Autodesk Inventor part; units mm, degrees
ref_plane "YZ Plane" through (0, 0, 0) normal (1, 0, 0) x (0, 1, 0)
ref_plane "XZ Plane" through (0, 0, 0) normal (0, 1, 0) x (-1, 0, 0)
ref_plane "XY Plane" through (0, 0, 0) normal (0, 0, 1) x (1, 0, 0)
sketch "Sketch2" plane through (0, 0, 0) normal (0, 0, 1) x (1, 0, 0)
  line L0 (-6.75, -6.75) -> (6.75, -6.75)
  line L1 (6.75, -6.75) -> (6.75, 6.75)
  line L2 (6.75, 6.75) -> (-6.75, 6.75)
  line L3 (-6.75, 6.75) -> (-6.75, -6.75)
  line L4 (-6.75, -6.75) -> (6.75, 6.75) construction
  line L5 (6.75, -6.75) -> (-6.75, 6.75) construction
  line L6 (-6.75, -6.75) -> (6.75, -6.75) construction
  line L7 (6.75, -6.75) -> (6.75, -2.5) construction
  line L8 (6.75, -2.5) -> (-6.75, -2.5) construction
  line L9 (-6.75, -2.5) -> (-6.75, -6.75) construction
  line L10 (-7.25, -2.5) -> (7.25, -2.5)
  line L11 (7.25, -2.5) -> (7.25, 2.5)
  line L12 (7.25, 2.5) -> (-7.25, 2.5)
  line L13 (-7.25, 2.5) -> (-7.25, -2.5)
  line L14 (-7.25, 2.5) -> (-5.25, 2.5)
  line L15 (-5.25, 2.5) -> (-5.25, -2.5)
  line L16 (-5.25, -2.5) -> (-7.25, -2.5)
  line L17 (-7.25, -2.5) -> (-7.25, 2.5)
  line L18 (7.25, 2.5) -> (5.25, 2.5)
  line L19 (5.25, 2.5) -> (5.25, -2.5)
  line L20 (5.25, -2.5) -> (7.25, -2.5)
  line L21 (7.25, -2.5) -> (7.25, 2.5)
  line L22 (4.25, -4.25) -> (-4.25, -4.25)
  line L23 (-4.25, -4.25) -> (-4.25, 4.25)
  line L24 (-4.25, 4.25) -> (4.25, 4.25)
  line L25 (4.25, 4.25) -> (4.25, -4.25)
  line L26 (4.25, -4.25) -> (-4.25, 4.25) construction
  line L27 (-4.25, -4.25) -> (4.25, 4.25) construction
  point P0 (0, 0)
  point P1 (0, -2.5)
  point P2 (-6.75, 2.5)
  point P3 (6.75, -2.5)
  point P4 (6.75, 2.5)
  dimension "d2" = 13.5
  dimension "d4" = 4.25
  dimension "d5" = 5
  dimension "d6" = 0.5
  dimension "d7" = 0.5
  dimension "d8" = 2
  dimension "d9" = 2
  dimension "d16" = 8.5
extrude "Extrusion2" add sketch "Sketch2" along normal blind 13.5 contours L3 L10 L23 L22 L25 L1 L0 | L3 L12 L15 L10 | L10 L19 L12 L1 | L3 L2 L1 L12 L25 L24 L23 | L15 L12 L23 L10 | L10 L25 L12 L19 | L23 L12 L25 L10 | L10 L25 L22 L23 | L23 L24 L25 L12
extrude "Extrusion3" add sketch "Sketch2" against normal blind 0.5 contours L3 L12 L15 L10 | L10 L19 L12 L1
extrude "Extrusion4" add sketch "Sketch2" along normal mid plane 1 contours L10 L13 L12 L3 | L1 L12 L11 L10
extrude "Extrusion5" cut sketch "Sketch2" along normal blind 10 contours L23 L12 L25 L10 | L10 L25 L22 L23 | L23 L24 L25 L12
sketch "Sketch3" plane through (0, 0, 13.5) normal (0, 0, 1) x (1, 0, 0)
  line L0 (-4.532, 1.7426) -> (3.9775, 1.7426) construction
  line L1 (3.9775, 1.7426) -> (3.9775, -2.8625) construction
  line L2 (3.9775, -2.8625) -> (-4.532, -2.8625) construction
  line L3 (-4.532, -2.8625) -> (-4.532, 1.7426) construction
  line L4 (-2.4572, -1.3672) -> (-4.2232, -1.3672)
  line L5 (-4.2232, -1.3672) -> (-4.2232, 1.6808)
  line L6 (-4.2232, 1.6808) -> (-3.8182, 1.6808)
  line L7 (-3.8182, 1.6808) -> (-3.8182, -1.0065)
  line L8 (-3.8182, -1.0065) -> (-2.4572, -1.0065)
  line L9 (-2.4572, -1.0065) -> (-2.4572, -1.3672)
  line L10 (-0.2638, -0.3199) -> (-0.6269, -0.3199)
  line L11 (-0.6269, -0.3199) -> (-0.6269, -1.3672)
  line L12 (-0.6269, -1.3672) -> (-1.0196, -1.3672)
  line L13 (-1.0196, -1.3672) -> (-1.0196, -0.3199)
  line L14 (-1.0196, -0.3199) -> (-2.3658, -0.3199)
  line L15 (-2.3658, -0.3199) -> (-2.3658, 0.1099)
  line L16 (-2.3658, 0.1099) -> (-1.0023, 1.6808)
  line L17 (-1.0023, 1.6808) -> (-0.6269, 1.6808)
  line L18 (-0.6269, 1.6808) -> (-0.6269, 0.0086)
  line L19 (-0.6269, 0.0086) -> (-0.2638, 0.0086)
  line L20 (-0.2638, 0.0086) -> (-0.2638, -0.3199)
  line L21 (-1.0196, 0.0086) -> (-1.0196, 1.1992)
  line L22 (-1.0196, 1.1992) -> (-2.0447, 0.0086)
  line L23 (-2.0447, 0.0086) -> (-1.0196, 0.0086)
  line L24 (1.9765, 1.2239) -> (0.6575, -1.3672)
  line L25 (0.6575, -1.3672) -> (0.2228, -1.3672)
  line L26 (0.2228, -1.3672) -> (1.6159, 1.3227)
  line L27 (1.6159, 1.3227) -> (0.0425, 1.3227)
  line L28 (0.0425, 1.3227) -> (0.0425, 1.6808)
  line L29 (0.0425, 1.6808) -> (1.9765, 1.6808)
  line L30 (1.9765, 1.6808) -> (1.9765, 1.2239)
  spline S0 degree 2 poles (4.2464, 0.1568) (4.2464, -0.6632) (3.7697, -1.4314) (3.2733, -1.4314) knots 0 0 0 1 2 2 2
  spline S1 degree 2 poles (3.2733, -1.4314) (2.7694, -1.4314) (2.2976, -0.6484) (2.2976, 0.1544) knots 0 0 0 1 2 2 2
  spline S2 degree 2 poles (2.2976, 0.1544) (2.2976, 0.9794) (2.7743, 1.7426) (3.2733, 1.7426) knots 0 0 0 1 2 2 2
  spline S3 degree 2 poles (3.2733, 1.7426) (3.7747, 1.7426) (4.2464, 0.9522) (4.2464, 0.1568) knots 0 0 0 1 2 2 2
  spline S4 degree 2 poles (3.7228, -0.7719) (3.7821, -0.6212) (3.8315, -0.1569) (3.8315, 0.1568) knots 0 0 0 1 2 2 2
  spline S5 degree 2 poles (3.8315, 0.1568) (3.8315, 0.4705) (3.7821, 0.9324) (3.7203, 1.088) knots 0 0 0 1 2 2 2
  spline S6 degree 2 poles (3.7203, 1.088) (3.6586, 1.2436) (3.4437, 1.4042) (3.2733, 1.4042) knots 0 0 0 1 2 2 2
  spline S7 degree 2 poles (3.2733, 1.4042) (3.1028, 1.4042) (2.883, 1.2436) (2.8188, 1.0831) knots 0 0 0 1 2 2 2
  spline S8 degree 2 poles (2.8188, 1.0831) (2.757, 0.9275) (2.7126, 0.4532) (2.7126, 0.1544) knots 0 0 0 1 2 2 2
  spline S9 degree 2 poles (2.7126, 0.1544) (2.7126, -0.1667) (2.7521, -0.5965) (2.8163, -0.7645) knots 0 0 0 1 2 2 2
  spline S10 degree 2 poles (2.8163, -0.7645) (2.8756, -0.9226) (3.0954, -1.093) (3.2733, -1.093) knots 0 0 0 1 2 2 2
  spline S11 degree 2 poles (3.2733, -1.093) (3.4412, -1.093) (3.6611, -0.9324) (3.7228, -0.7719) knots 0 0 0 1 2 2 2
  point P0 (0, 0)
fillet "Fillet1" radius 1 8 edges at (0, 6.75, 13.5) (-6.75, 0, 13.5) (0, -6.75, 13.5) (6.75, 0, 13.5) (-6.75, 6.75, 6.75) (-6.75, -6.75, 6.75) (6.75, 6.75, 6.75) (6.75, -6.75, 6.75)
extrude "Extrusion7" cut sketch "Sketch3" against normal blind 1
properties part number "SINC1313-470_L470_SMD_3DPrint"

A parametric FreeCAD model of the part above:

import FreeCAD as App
import Part
import Sketcher
Q = App.Units.Quantity


def edges_at(feature, points):
    """Names of the edges that pass closest to the given points."""
    edges = feature.Shape.Edges
    near = lambda p: min(range(len(edges)), key=lambda i: edges[i].distToShape(Part.Vertex(*p))[0])
    return sorted({f"Edge{near(p) + 1}" for p in points})


def add_polygon(sketch, points):
    """Adds a closed chain of lines whose ends are joined by coincident constraints."""
    first, n = sketch.GeometryCount, len(points)
    for a, b in zip(points, points[1:] + points[:1]):
        sketch.addGeometry(Part.LineSegment(App.Vector(*a, 0), App.Vector(*b, 0)), False)
    for i in range(n):
        sketch.addConstraint(Sketcher.Constraint("Coincident", first + i, 2, first + (i + 1) % n, 1))

doc = App.newDocument("Part")
body = doc.addObject("PartDesign::Body", "Body")

sketch1 = doc.addObject("Sketcher::SketchObject", "Sketch")
body.addObject(sketch1)
sketch1.AttachmentSupport = (doc.XY_Plane, [""])
sketch1.MapMode = "FlatFace"
add_polygon(sketch1, [(-7, -7), (7, -7), (7, 7), (-7, 7)])
sketch1.addConstraint(Sketcher.Constraint("Horizontal", 0))
sketch1.addConstraint(Sketcher.Constraint("Vertical", 1))
sketch1.addConstraint(Sketcher.Constraint("Horizontal", 2))
sketch1.addConstraint(Sketcher.Constraint("Vertical", 3))
sketch1.addConstraint(Sketcher.Constraint("Symmetric", 0, 2, 2, 2, -1, 1))
sketch1.addConstraint(Sketcher.Constraint("Equal", 2, 1))
sketch1.addConstraint(Sketcher.Constraint("DistanceX", 0, 1, 0, 2, Q("13.5 mm")))
pad1 = doc.addObject("PartDesign::Pad", "Pad")
body.addObject(pad1)
pad1.Profile = sketch1
pad1.Length = 13.5

sketch2 = doc.addObject("Sketcher::SketchObject", "Sketch001")
body.addObject(sketch2)
sketch2.AttachmentSupport = (doc.XY_Plane, [""])
sketch2.MapMode = "FlatFace"
add_polygon(sketch2, [(-6.8, 2.5), (-6.8, -2.5), (-5.2, -2.5), (-5.2, 2.5)])
add_polygon(sketch2, [(5.2, -2.5), (6.8, -2.5), (6.8, 2.5), (5.2, 2.5)])
sketch2.addConstraint(Sketcher.Constraint("Vertical", 0))
sketch2.addConstraint(Sketcher.Constraint("Horizontal", 1))
sketch2.addConstraint(Sketcher.Constraint("Vertical", 2))
sketch2.addConstraint(Sketcher.Constraint("Horizontal", 3))
sketch2.addConstraint(Sketcher.Constraint("Horizontal", 4))
sketch2.addConstraint(Sketcher.Constraint("Vertical", 5))
sketch2.addConstraint(Sketcher.Constraint("Horizontal", 6))
sketch2.addConstraint(Sketcher.Constraint("Vertical", 7))
sketch2.addConstraint(Sketcher.Constraint("Symmetric", 3, 2, 4, 2, -1, 1))
sketch2.addConstraint(Sketcher.Constraint("Symmetric", 1, 2, 6, 2, -1, 1))
sketch2.addConstraint(Sketcher.Constraint("Horizontal", 1, 2, 4, 2))
sketch2.addConstraint(Sketcher.Constraint("DistanceY", 0, 2, 0, 1, Q("5 mm")))
sketch2.addConstraint(Sketcher.Constraint("DistanceX", 0, 2, 4, 2, Q("13.5 mm")))
sketch2.addConstraint(Sketcher.Constraint("DistanceX", 1, 1, 1, 2, Q("1.5 mm")))
pad2 = doc.addObject("PartDesign::Pad", "Pad001")
body.addObject(pad2)
pad2.Profile = sketch2
pad2.Length = 0.5
pad2.Reversed = True

sketch3 = doc.addObject("Sketcher::SketchObject", "Sketch002")
body.addObject(sketch3)
sketch3.AttachmentSupport = (doc.XY_Plane, [""])
sketch3.MapMode = "FlatFace"
add_polygon(sketch3, [(-7.2, -2.5), (-6.8, -2.5), (-6.8, 2.5), (-7.2, 2.5)])
add_polygon(sketch3, [(6.8, 2.5), (6.8, -2.5), (7.2, -2.5), (7.2, 2.5)])
sketch3.addConstraint(Sketcher.Constraint("Horizontal", 0))
sketch3.addConstraint(Sketcher.Constraint("Vertical", 1))
sketch3.addConstraint(Sketcher.Constraint("Horizontal", 2))
sketch3.addConstraint(Sketcher.Constraint("Vertical", 3))
sketch3.addConstraint(Sketcher.Constraint("Vertical", 4))
sketch3.addConstraint(Sketcher.Constraint("Horizontal", 5))
sketch3.addConstraint(Sketcher.Constraint("Vertical", 6))
sketch3.addConstraint(Sketcher.Constraint("Horizontal", 7))
sketch3.addConstraint(Sketcher.Constraint("Symmetric", 1, 2, 4, 2, -1, 1))
sketch3.addConstraint(Sketcher.Constraint("Symmetric", 3, 2, 6, 2, -1, 1))
sketch3.addConstraint(Sketcher.Constraint("Horizontal", 3, 2, 4, 2))
sketch3.addConstraint(Sketcher.Constraint("DistanceY", 1, 1, 1, 2, Q("5 mm")))
sketch3.addConstraint(Sketcher.Constraint("DistanceX", 0, 1, 0, 2, Q("0.5 mm")))
sketch3.addConstraint(Sketcher.Constraint("DistanceX", 0, 2, 4, 2, Q("13.5 mm")))
pad3 = doc.addObject("PartDesign::Pad", "Pad002")
body.addObject(pad3)
pad3.Profile = sketch3
pad3.Length = 1
pad3.Midplane = True

sketch4 = doc.addObject("Sketcher::SketchObject", "Sketch003")
body.addObject(sketch4)
sketch4.AttachmentSupport = (doc.XY_Plane, [""])
sketch4.MapMode = "FlatFace"
add_polygon(sketch4, [(-4, -4), (4, -4), (4, 4), (-4, 4)])
sketch4.addConstraint(Sketcher.Constraint("Horizontal", 0))
sketch4.addConstraint(Sketcher.Constraint("Vertical", 1))
sketch4.addConstraint(Sketcher.Constraint("Horizontal", 2))
sketch4.addConstraint(Sketcher.Constraint("Vertical", 3))
sketch4.addConstraint(Sketcher.Constraint("Symmetric", 0, 2, 2, 2, -1, 1))
sketch4.addConstraint(Sketcher.Constraint("Equal", 2, 1))
sketch4.addConstraint(Sketcher.Constraint("DistanceX", 0, 1, 0, 2, Q("8.5 mm")))
pocket1 = doc.addObject("PartDesign::Pocket", "Pocket")
body.addObject(pocket1)
pocket1.Profile = sketch4
pocket1.Length = 10
pocket1.Reversed = True
doc.recompute()

fillet = doc.addObject("PartDesign::Fillet", "Fillet")
body.addObject(fillet)
fillet.Base = (pocket1, edges_at(pocket1, [
    (0, 6.75, 13.5),
    (-6.75, 0, 13.5),
    (0, -6.75, 13.5),
    (6.75, 0, 13.5),
    (-6.75, 6.75, 6.75),
    (-6.75, -6.75, 6.75),
    (6.75, 6.75, 6.75),
    (6.75, -6.75, 6.75),
]))
fillet.Radius = 1

sketch5 = doc.addObject("Sketcher::SketchObject", "Sketch004")
body.addObject(sketch5)
sketch5.AttachmentSupport = (doc.XY_Plane, [""])
sketch5.MapMode = "FlatFace"
sketch5.AttachmentOffset = App.Placement(App.Vector(0, 0, 13.5), App.Rotation())
add_polygon(sketch5, [(-4.2232, -1.3672), (-2.4572, -1.3672), (-2.4572, -1.0065), (-3.8182, -1.0065), (-3.8182, 1.6808), (-4.2232, 1.6808)])
add_polygon(sketch5, [(-0.6269, -0.3199), (-0.2638, -0.3199), (-0.2638, 0.0086), (-0.6269, 0.0086), (-0.6269, 1.6808), (-1.0023, 1.6808), (-2.3658, 0.1099), (-2.3658, -0.3199), (-1.0196, -0.3199), (-1.0196, -1.3672), (-0.6269, -1.3672)])
add_polygon(sketch5, [(-1.0196, 1.1992), (-1.0196, 0.0086), (-2.0447, 0.0086)])
add_polygon(sketch5, [(0.6575, -1.3672), (1.9765, 1.2239), (1.9765, 1.6808), (0.0425, 1.6808), (0.0425, 1.3227), (1.6159, 1.3227), (0.2228, -1.3672)])
sketch5.addGeometry(Part.BSplineCurve([App.Vector(4.2464, 0.1568, 0), App.Vector(4.2464, -0.6632, 0), App.Vector(3.7697, -1.4314, 0), App.Vector(3.2733, -1.4314, 0)], [3, 1, 3], [0, 1, 2], False, 2, [1, 1, 1, 1], False), False)
sketch5.addGeometry(Part.BSplineCurve([App.Vector(3.2733, 1.7426, 0), App.Vector(3.7747, 1.7426, 0), App.Vector(4.2464, 0.9522, 0), App.Vector(4.2464, 0.1568, 0)], [3, 1, 3], [0, 1, 2], False, 2, [1, 1, 1, 1], False), False)
sketch5.addGeometry(Part.BSplineCurve([App.Vector(2.2976, 0.1544, 0), App.Vector(2.2976, 0.9794, 0), App.Vector(2.7743, 1.7426, 0), App.Vector(3.2733, 1.7426, 0)], [3, 1, 3], [0, 1, 2], False, 2, [1, 1, 1, 1], False), False)
sketch5.addGeometry(Part.BSplineCurve([App.Vector(3.2733, -1.4314, 0), App.Vector(2.7694, -1.4314, 0), App.Vector(2.2976, -0.6484, 0), App.Vector(2.2976, 0.1544, 0)], [3, 1, 3], [0, 1, 2], False, 2, [1, 1, 1, 1], False), False)
sketch5.addGeometry(Part.BSplineCurve([App.Vector(3.7228, -0.7719, 0), App.Vector(3.7821, -0.6212, 0), App.Vector(3.8315, -0.1569, 0), App.Vector(3.8315, 0.1568, 0)], [3, 1, 3], [0, 1, 2], False, 2, [1, 1, 1, 1], False), False)
sketch5.addGeometry(Part.BSplineCurve([App.Vector(3.2733, -1.093, 0), App.Vector(3.4412, -1.093, 0), App.Vector(3.6611, -0.9324, 0), App.Vector(3.7228, -0.7719, 0)], [3, 1, 3], [0, 1, 2], False, 2, [1, 1, 1, 1], False), False)
sketch5.addGeometry(Part.BSplineCurve([App.Vector(2.8163, -0.7645, 0), App.Vector(2.8756, -0.9226, 0), App.Vector(3.0954, -1.093, 0), App.Vector(3.2733, -1.093, 0)], [3, 1, 3], [0, 1, 2], False, 2, [1, 1, 1, 1], False), False)
sketch5.addGeometry(Part.BSplineCurve([App.Vector(2.7126, 0.1544, 0), App.Vector(2.7126, -0.1667, 0), App.Vector(2.7521, -0.5965, 0), App.Vector(2.8163, -0.7645, 0)], [3, 1, 3], [0, 1, 2], False, 2, [1, 1, 1, 1], False), False)
sketch5.addGeometry(Part.BSplineCurve([App.Vector(2.8188, 1.0831, 0), App.Vector(2.757, 0.9275, 0), App.Vector(2.7126, 0.4532, 0), App.Vector(2.7126, 0.1544, 0)], [3, 1, 3], [0, 1, 2], False, 2, [1, 1, 1, 1], False), False)
sketch5.addGeometry(Part.BSplineCurve([App.Vector(3.2733, 1.4042, 0), App.Vector(3.1028, 1.4042, 0), App.Vector(2.883, 1.2436, 0), App.Vector(2.8188, 1.0831, 0)], [3, 1, 3], [0, 1, 2], False, 2, [1, 1, 1, 1], False), False)
sketch5.addGeometry(Part.BSplineCurve([App.Vector(3.7203, 1.088, 0), App.Vector(3.6586, 1.2436, 0), App.Vector(3.4437, 1.4042, 0), App.Vector(3.2733, 1.4042, 0)], [3, 1, 3], [0, 1, 2], False, 2, [1, 1, 1, 1], False), False)
sketch5.addGeometry(Part.BSplineCurve([App.Vector(3.8315, 0.1568, 0), App.Vector(3.8315, 0.4705, 0), App.Vector(3.7821, 0.9324, 0), App.Vector(3.7203, 1.088, 0)], [3, 1, 3], [0, 1, 2], False, 2, [1, 1, 1, 1], False), False)
sketch5.addConstraint(Sketcher.Constraint("Block", 27))
sketch5.addConstraint(Sketcher.Constraint("Block", 28))
sketch5.addConstraint(Sketcher.Constraint("Block", 29))
sketch5.addConstraint(Sketcher.Constraint("Block", 30))
sketch5.addConstraint(Sketcher.Constraint("Block", 31))
sketch5.addConstraint(Sketcher.Constraint("Block", 32))
sketch5.addConstraint(Sketcher.Constraint("Block", 33))
sketch5.addConstraint(Sketcher.Constraint("Block", 34))
sketch5.addConstraint(Sketcher.Constraint("Block", 35))
sketch5.addConstraint(Sketcher.Constraint("Block", 36))
sketch5.addConstraint(Sketcher.Constraint("Block", 37))
sketch5.addConstraint(Sketcher.Constraint("Block", 38))
sketch5.addConstraint(Sketcher.Constraint("Horizontal", 0))
sketch5.addConstraint(Sketcher.Constraint("Vertical", 1))
sketch5.addConstraint(Sketcher.Constraint("Horizontal", 2))
sketch5.addConstraint(Sketcher.Constraint("Vertical", 3))
sketch5.addConstraint(Sketcher.Constraint("Horizontal", 4))
sketch5.addConstraint(Sketcher.Constraint("Vertical", 5))
sketch5.addConstraint(Sketcher.Constraint("Horizontal", 6))
sketch5.addConstraint(Sketcher.Constraint("Vertical", 7))
sketch5.addConstraint(Sketcher.Constraint("Horizontal", 8))
sketch5.addConstraint(Sketcher.Constraint("Vertical", 9))
sketch5.addConstraint(Sketcher.Constraint("Horizontal", 10))
sketch5.addConstraint(Sketcher.Constraint("Vertical", 12))
sketch5.addConstraint(Sketcher.Constraint("Horizontal", 13))
sketch5.addConstraint(Sketcher.Constraint("Vertical", 14))
sketch5.addConstraint(Sketcher.Constraint("Horizontal", 15))
sketch5.addConstraint(Sketcher.Constraint("Vertical", 16))
sketch5.addConstraint(Sketcher.Constraint("Vertical", 17))
sketch5.addConstraint(Sketcher.Constraint("Horizontal", 18))
sketch5.addConstraint(Sketcher.Constraint("Vertical", 21))
sketch5.addConstraint(Sketcher.Constraint("Horizontal", 22))
sketch5.addConstraint(Sketcher.Constraint("Vertical", 23))
sketch5.addConstraint(Sketcher.Constraint("Horizontal", 24))
sketch5.addConstraint(Sketcher.Constraint("Horizontal", 26))
sketch5.addConstraint(Sketcher.Constraint("Horizontal", 4, 2, 9, 2))
sketch5.addConstraint(Sketcher.Constraint("Horizontal", 6, 2, 12, 2))
sketch5.addConstraint(Sketcher.Constraint("Horizontal", 5, 2, 14, 2))
sketch5.addConstraint(Sketcher.Constraint("Horizontal", 8, 2, 17, 2))
sketch5.addConstraint(Sketcher.Constraint("Horizontal", 10, 2, 21, 2))
sketch5.addConstraint(Sketcher.Constraint("Horizontal", 15, 2, 25, 2))
sketch5.addConstraint(Sketcher.Constraint("Vertical", 9, 2, 15, 2))
sketch5.addConstraint(Sketcher.Constraint("Vertical", 14, 2, 17, 2))
sketch5.addConstraint(Sketcher.Constraint("Angle", 25, Q("-117.3797 deg")))
sketch5.addConstraint(Sketcher.Constraint("Distance", 11, Q("2.08 mm")))
sketch5.addConstraint(Sketcher.Constraint("DistanceX", 0, 1, 0, 2, Q("1.766 mm")))
sketch5.addConstraint(Sketcher.Constraint("DistanceX", 2, 2, 2, 1, Q("1.361 mm")))
sketch5.addConstraint(Sketcher.Constraint("DistanceX", 6, 1, 6, 2, Q("0.363 mm")))
sketch5.addConstraint(Sketcher.Constraint("DistanceX", 18, 2, 18, 1, Q("1.025 mm")))
sketch5.addConstraint(Sketcher.Constraint("DistanceX", 22, 2, 22, 1, Q("1.934 mm")))
sketch5.addConstraint(Sketcher.Constraint("DistanceY", 5, 2, 5, 1, Q("3.048 mm")))
sketch5.addConstraint(Sketcher.Constraint("DistanceY", 21, 1, 21, 2, Q("0.457 mm")))
sketch5.addConstraint(Sketcher.Constraint("DistanceY", 23, 2, 23, 1, Q("0.358 mm")))
sketch5.addConstraint(Sketcher.Constraint("DistanceY", 6, 2, -1, 1, Q("0.32 mm")))
sketch5.addConstraint(Sketcher.Constraint("DistanceY", -1, 1, 11, 2, Q("0.11 mm")))
sketch5.addConstraint(Sketcher.Constraint("Distance", 19, Q("1.571 mm")))
sketch5.addConstraint(Sketcher.Constraint("DistanceX", 10, 2, 10, 1, Q("0.3754 mm")))
sketch5.addConstraint(Sketcher.Constraint("DistanceX", 13, 1, 13, 2, Q("1.3462 mm")))
sketch5.addConstraint(Sketcher.Constraint("DistanceX", 15, 1, 15, 2, Q("0.3927 mm")))
sketch5.addConstraint(Sketcher.Constraint("DistanceX", 24, 1, 24, 2, Q("1.5734 mm")))
sketch5.addConstraint(Sketcher.Constraint("DistanceX", 26, 1, 26, 2, Q("0.4347 mm")))
sketch5.addConstraint(Sketcher.Constraint("DistanceY", 1, 1, 1, 2, Q("0.3607 mm")))
sketch5.addConstraint(Sketcher.Constraint("DistanceY", 7, 1, 7, 2, Q("0.3285 mm")))
sketch5.addConstraint(Sketcher.Constraint("DistanceX", 8, 2, -1, 1, Q("0.627 mm")))
sketch5.addConstraint(Sketcher.Constraint("DistanceX", -1, 1, 24, 2, Q("1.616 mm")))
sketch5.addConstraint(Sketcher.Constraint("DistanceX", 3, 2, 10, 2, Q("2.816 mm")))
pocket2 = doc.addObject("PartDesign::Pocket", "Pocket001")
body.addObject(pocket2)
pocket2.Profile = sketch5
pocket2.Length = 1

doc.recompute()
